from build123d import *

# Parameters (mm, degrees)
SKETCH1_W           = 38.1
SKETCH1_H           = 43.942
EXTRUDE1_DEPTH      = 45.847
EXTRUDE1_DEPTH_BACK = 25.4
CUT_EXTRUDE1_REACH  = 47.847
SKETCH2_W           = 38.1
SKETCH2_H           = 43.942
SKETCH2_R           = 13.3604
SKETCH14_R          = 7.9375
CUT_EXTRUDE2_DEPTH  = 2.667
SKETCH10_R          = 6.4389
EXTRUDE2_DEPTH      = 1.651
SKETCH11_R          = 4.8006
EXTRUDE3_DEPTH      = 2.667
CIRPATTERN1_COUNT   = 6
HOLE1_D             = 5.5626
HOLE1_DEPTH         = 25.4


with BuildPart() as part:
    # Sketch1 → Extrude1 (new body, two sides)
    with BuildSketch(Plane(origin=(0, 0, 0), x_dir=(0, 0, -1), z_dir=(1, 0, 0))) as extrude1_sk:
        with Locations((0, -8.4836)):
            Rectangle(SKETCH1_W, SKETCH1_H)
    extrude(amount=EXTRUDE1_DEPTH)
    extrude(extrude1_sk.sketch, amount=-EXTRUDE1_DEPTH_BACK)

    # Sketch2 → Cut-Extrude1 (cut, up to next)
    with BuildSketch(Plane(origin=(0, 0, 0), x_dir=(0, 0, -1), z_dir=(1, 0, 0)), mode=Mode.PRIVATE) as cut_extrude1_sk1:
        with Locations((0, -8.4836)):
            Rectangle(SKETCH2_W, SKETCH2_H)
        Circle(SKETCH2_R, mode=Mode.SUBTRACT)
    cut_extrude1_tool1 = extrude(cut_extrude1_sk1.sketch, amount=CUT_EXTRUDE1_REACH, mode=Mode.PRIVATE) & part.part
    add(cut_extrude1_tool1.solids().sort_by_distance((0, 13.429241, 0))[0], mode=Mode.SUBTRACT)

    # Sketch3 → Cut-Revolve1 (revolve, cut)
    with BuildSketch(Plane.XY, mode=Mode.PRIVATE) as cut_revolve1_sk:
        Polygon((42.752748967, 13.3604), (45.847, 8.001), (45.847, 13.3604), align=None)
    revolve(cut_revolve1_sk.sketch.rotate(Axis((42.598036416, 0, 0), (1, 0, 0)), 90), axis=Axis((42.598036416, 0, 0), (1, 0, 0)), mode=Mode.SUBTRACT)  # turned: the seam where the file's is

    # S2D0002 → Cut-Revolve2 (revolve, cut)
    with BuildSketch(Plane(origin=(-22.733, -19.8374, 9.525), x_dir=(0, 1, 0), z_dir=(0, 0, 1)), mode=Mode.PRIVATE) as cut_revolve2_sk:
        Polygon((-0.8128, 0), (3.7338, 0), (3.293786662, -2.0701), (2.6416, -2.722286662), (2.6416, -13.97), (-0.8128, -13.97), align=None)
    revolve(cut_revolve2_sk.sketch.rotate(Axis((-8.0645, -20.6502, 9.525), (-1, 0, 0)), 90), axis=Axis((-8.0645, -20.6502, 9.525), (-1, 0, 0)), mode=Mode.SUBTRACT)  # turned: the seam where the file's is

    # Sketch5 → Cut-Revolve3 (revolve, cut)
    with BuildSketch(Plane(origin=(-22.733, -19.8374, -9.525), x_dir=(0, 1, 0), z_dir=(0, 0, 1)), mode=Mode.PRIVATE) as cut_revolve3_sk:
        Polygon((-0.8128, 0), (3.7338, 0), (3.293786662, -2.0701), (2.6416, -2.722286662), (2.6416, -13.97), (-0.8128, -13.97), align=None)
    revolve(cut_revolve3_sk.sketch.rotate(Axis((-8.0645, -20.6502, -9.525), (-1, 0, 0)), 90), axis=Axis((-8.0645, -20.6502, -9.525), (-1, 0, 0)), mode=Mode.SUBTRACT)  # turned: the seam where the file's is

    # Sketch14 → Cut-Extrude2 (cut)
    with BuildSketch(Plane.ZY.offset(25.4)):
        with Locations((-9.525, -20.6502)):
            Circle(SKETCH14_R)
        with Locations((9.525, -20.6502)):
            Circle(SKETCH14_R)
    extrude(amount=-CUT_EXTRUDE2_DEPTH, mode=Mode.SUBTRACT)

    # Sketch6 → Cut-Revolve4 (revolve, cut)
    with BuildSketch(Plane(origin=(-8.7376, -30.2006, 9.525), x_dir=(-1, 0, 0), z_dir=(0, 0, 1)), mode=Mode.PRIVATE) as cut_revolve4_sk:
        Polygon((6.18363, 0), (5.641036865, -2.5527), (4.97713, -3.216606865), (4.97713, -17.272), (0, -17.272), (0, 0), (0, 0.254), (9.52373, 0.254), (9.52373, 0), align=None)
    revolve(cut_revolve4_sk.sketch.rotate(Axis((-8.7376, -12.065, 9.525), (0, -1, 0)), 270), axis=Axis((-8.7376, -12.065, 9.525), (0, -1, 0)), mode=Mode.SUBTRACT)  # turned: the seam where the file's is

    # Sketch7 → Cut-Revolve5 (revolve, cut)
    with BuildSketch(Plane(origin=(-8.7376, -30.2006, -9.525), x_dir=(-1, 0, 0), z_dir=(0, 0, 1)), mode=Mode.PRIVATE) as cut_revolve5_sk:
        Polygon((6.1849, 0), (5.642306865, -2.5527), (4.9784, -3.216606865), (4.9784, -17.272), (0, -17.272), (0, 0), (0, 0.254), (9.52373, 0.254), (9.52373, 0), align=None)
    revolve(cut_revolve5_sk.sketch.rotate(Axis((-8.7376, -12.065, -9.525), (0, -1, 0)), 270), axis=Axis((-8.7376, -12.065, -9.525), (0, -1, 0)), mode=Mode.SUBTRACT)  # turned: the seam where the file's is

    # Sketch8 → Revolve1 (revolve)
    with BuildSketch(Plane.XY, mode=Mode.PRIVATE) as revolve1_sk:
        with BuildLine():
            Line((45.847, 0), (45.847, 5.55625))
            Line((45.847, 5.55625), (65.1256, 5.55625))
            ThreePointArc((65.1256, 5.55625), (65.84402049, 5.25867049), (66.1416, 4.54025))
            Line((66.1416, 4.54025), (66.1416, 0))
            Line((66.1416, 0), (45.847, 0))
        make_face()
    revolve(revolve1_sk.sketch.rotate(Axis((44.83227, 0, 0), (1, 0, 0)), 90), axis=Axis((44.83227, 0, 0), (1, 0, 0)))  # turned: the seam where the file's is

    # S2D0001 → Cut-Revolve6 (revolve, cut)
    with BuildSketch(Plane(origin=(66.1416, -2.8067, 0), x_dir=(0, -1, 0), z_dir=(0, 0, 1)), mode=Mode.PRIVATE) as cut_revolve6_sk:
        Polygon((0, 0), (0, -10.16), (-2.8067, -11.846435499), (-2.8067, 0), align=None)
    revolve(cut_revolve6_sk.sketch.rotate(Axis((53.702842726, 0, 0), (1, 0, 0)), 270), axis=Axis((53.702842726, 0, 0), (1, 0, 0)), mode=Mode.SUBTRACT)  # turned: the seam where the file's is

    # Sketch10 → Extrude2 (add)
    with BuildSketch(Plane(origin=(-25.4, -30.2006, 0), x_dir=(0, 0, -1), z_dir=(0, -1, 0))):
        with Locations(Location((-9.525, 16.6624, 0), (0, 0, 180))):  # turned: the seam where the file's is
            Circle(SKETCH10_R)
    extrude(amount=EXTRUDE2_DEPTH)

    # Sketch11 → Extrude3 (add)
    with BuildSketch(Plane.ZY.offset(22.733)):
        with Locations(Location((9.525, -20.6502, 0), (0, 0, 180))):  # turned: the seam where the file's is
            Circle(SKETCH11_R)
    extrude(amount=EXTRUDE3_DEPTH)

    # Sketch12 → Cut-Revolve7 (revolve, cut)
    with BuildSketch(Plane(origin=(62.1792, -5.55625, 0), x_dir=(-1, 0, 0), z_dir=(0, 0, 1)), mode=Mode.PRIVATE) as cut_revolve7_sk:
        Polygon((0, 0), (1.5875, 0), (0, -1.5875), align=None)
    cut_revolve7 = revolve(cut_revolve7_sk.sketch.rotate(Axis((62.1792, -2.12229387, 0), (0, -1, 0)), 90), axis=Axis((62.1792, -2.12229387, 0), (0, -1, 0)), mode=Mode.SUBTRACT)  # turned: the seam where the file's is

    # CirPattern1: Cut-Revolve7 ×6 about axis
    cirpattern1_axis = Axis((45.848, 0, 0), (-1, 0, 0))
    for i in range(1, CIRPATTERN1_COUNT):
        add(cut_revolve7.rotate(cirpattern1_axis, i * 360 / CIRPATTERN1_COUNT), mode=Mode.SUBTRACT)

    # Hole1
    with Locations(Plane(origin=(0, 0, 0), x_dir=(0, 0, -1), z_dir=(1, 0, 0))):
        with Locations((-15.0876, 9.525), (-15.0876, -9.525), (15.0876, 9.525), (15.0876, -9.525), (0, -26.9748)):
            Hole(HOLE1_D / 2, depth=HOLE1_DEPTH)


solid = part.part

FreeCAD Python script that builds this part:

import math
import FreeCAD as App
import Part
import Sketcher
Q = App.Units.Quantity

doc = App.newDocument("Part")
body = doc.addObject("PartDesign::Body", "Body")

sketch1 = body.newObject("Sketcher::SketchObject", "Sketch")
sketch1.AttachmentSupport = (doc.getObject("YZ_Plane"), [""])
sketch1.MapMode = "FlatFace"
sketch1.addGeometry([
    Part.LineSegment(App.Vector(13, 19, 0), App.Vector(-30, 19, 0)),
    Part.LineSegment(App.Vector(-30, 19, 0), App.Vector(-30, -19, 0)),
    Part.LineSegment(App.Vector(-30, -19, 0), App.Vector(13, -19, 0)),
    Part.LineSegment(App.Vector(13, -19, 0), App.Vector(13, 19, 0)),
], False)
sketch1.addConstraint([
    Sketcher.Constraint("Coincident", 0, 2, 1, 1),
    Sketcher.Constraint("Coincident", 1, 2, 2, 1),
    Sketcher.Constraint("Coincident", 2, 2, 3, 1),
    Sketcher.Constraint("Coincident", 3, 2, 0, 1),
    Sketcher.Constraint("Horizontal", 0),
    Sketcher.Constraint("Vertical", 1),
    Sketcher.Constraint("Horizontal", 2),
    Sketcher.Constraint("Vertical", 3),
    Sketcher.Constraint("DistanceY", 1, 2, 1, 1, Q("1.5 in")),
    Sketcher.Constraint("DistanceX", 0, 2, 0, 1, Q("1.73 in")),
    Sketcher.Constraint("DistanceY", -1, 1, 0, 2, Q("0.75 in")),
    Sketcher.Constraint("DistanceX", 0, 2, -1, 1, Q("1.199 in")),
])
pad1 = body.newObject("PartDesign::Pad", "Pad")
pad1.Profile = sketch1
pad1.Type = "TwoLengths"
pad1.Length = Q("1.805 in")
pad1.Length2 = Q("1 in")

sketch2 = body.newObject("Sketcher::SketchObject", "Sketch001")
sketch2.AttachmentSupport = (doc.getObject("YZ_Plane"), [""])
sketch2.MapMode = "FlatFace"
sketch2.addGeometry([
    Part.LineSegment(App.Vector(13, 19, 0), App.Vector(-30, 19, 0)),
    Part.LineSegment(App.Vector(-30, 19, 0), App.Vector(-30, -19, 0)),
    Part.LineSegment(App.Vector(-30, -19, 0), App.Vector(13, -19, 0)),
    Part.LineSegment(App.Vector(13, -19, 0), App.Vector(13, 19, 0)),
    Part.Circle(App.Vector(0, 0, 0), App.Vector(0, 0, 1), 13),
], False)
sketch2.addConstraint([
    Sketcher.Constraint("Coincident", 0, 2, 1, 1),
    Sketcher.Constraint("Coincident", 1, 2, 2, 1),
    Sketcher.Constraint("Coincident", 2, 2, 3, 1),
    Sketcher.Constraint("Coincident", 3, 2, 0, 1),
    Sketcher.Constraint("Horizontal", 0),
    Sketcher.Constraint("Vertical", 1),
    Sketcher.Constraint("Horizontal", 2),
    Sketcher.Constraint("Vertical", 3),
    Sketcher.Constraint("Coincident", 4, 3, -1, 1),
    Sketcher.Constraint("Diameter", 4, Q("1.052 in")),
    Sketcher.Constraint("DistanceY", 1, 2, 1, 1, Q("1.5 in")),
    Sketcher.Constraint("DistanceX", 0, 2, 0, 1, Q("1.73 in")),
    Sketcher.Constraint("DistanceY", -1, 1, 0, 2, Q("0.75 in")),
    Sketcher.Constraint("DistanceX", 0, 2, -1, 1, Q("1.199 in")),
])
pocket1 = body.newObject("PartDesign::Pocket", "Pocket")
pocket1.Profile = sketch2
pocket1.Type = "UpToFirst"
pocket1.Reversed = True

sketch3 = body.newObject("Sketcher::SketchObject", "Sketch002")
sketch3.AttachmentSupport = (doc.getObject("XY_Plane"), [""])
sketch3.MapMode = "FlatFace"
sketch3.addGeometry([
    Part.LineSegment(App.Vector(42.8, 13.4, 0), App.Vector(45.8, 8, 0)),
    Part.LineSegment(App.Vector(45.8, 8, 0), App.Vector(45.8, 13.4, 0)),
    Part.LineSegment(App.Vector(45.8, 13.4, 0), App.Vector(42.8, 13.4, 0)),
], False)
sketch3.addConstraint([
    Sketcher.Constraint("Coincident", 0, 2, 1, 1),
    Sketcher.Constraint("Coincident", 1, 2, 2, 1),
    Sketcher.Constraint("Coincident", 2, 2, 0, 1),
    Sketcher.Constraint("Vertical", 1),
    Sketcher.Constraint("Horizontal", 2),
    Sketcher.Constraint("Angle", 0, Q("-60 deg")),
    Sketcher.Constraint("DistanceY", 1, 1, 1, 2, Q("0.211 in")),
    Sketcher.Constraint("DistanceX", -1, 1, 0, 2, Q("1.805 in")),
    Sketcher.Constraint("DistanceY", -1, 1, 0, 2, Q("0.315 in")),
])
groove = body.newObject("PartDesign::Groove", "Groove")
groove.Profile = sketch3
groove.ReferenceAxis = (sketch3, ["H_Axis"])
groove.Angle = 360

sketch4 = body.newObject("Sketcher::SketchObject", "Sketch003")
sketch4.AttachmentSupport = (doc.getObject("XY_Plane"), [""])
sketch4.MapMode = "FlatFace"
sketch4.AttachmentOffset = App.Placement(App.Vector(0, 0, 0.375 * 25.4), App.Rotation())
sketch4.addGeometry([
    Part.LineSegment(App.Vector(-22.7, -16.1, 0), App.Vector(-22.7, -20.7, 0)),
    Part.LineSegment(App.Vector(-22.7, -20.7, 0), App.Vector(-8.8, -20.7, 0)),
    Part.LineSegment(App.Vector(-8.8, -20.7, 0), App.Vector(-8.8, -17.2, 0)),
    Part.LineSegment(App.Vector(-8.8, -17.2, 0), App.Vector(-20, -17.2, 0)),
    Part.LineSegment(App.Vector(-20, -17.2, 0), App.Vector(-20.7, -16.5, 0)),
    Part.LineSegment(App.Vector(-20.7, -16.5, 0), App.Vector(-22.7, -16.1, 0)),
], False)
sketch4.addGeometry(Part.LineSegment(App.Vector(-8.8, -20.7, 0), App.Vector(-22.7, -20.7, 0)), True)
sketch4.addConstraint([
    Sketcher.Constraint("Coincident", 0, 2, 1, 1),
    Sketcher.Constraint("Coincident", 1, 2, 2, 1),
    Sketcher.Constraint("Coincident", 2, 2, 3, 1),
    Sketcher.Constraint("Coincident", 3, 2, 4, 1),
    Sketcher.Constraint("Coincident", 4, 2, 5, 1),
    Sketcher.Constraint("Coincident", 5, 2, 0, 1),
    Sketcher.Constraint("Vertical", 0),
    Sketcher.Constraint("Horizontal", 1),
    Sketcher.Constraint("Vertical", 2),
    Sketcher.Constraint("Horizontal", 3),
    Sketcher.Constraint("Horizontal", 6),
    Sketcher.Constraint("Coincident", 6, 1, 1, 2),
    Sketcher.Constraint("Vertical", 5, 2, 6, 2),
    Sketcher.Constraint("Angle", 4, Q("135 deg")),
    Sketcher.Constraint("Angle", 5, Q("168 deg")),
    Sketcher.Constraint("DistanceX", 1, 1, 1, 2, Q("0.55 in")),
    Sketcher.Constraint("DistanceY", 0, 2, 0, 1, Q("0.179 in")),
    Sketcher.Constraint("DistanceY", 2, 1, 2, 2, Q("0.136 in")),
    Sketcher.Constraint("DistanceX", 0, 2, -1, 1, Q("0.895 in")),
    Sketcher.Constraint("DistanceY", 0, 2, -1, 1, Q("0.813 in")),
    Sketcher.Constraint("DistanceX", 4, 2, -1, 1, Q("0.8135 in")),
])
groove2 = body.newObject("PartDesign::Groove", "Groove001")
groove2.Profile = sketch4
groove2.ReferenceAxis = (sketch4, ["Axis0"])
groove2.Angle = 360

sketch5 = body.newObject("Sketcher::SketchObject", "Sketch004")
sketch5.AttachmentSupport = (doc.getObject("XY_Plane"), [""])
sketch5.MapMode = "FlatFace"
sketch5.AttachmentOffset = App.Placement(App.Vector(0, 0, -0.375 * 25.4), App.Rotation())
sketch5.addGeometry([
    Part.LineSegment(App.Vector(-22.7, -16.1, 0), App.Vector(-22.7, -20.7, 0)),
    Part.LineSegment(App.Vector(-22.7, -20.7, 0), App.Vector(-8.8, -20.7, 0)),
    Part.LineSegment(App.Vector(-8.8, -20.7, 0), App.Vector(-8.8, -17.2, 0)),
    Part.LineSegment(App.Vector(-8.8, -17.2, 0), App.Vector(-20, -17.2, 0)),
    Part.LineSegment(App.Vector(-20, -17.2, 0), App.Vector(-20.7, -16.5, 0)),
    Part.LineSegment(App.Vector(-20.7, -16.5, 0), App.Vector(-22.7, -16.1, 0)),
], False)
sketch5.addGeometry(Part.LineSegment(App.Vector(-8.8, -20.7, 0), App.Vector(-22.7, -20.7, 0)), True)
sketch5.addConstraint([
    Sketcher.Constraint("Coincident", 0, 2, 1, 1),
    Sketcher.Constraint("Coincident", 1, 2, 2, 1),
    Sketcher.Constraint("Coincident", 2, 2, 3, 1),
    Sketcher.Constraint("Coincident", 3, 2, 4, 1),
    Sketcher.Constraint("Coincident", 4, 2, 5, 1),
    Sketcher.Constraint("Coincident", 5, 2, 0, 1),
    Sketcher.Constraint("Vertical", 0),
    Sketcher.Constraint("Horizontal", 1),
    Sketcher.Constraint("Vertical", 2),
    Sketcher.Constraint("Horizontal", 3),
    Sketcher.Constraint("Horizontal", 6),
    Sketcher.Constraint("Coincident", 6, 1, 1, 2),
    Sketcher.Constraint("Vertical", 5, 2, 6, 2),
    Sketcher.Constraint("Angle", 4, Q("135 deg")),
    Sketcher.Constraint("Angle", 5, Q("168 deg")),
    Sketcher.Constraint("DistanceX", 1, 1, 1, 2, Q("0.55 in")),
    Sketcher.Constraint("DistanceY", 0, 2, 0, 1, Q("0.179 in")),
    Sketcher.Constraint("DistanceY", 2, 1, 2, 2, Q("0.136 in")),
    Sketcher.Constraint("DistanceX", 0, 2, -1, 1, Q("0.895 in")),
    Sketcher.Constraint("DistanceY", 0, 2, -1, 1, Q("0.813 in")),
    Sketcher.Constraint("DistanceX", 4, 2, -1, 1, Q("0.8135 in")),
])
groove3 = body.newObject("PartDesign::Groove", "Groove002")
groove3.Profile = sketch5
groove3.ReferenceAxis = (sketch5, ["Axis0"])
groove3.Angle = 360

sketch6 = body.newObject("Sketcher::SketchObject", "Sketch005")
sketch6.AttachmentSupport = (doc.getObject("YZ_Plane"), [""])
sketch6.MapMode = "FlatFace"
sketch6.AttachmentOffset = App.Placement(App.Vector(0, 0, -1 * 25.4), App.Rotation())
sketch6.addGeometry([
    Part.Circle(App.Vector(-21, -10, 0), App.Vector(0, 0, 1), 8),
    Part.Circle(App.Vector(-21, 10, 0), App.Vector(0, 0, 1), 8),
], False)
sketch6.addConstraint([
    Sketcher.Constraint("Equal", 0, 1),
    Sketcher.Constraint("Symmetric", 0, 3, 1, 3, -1),
    Sketcher.Constraint("Diameter", 0, Q("0.625 in")),
    Sketcher.Constraint("DistanceY", 0, 3, 1, 3, Q("0.75 in")),
    Sketcher.Constraint("DistanceX", 0, 3, -1, 1, Q("0.813 in")),
])
pocket2 = body.newObject("PartDesign::Pocket", "Pocket001")
pocket2.Profile = sketch6
pocket2.Length = Q("0.105 in")
pocket2.Reversed = True

sketch7 = body.newObject("Sketcher::SketchObject", "Sketch006")
sketch7.AttachmentSupport = (doc.getObject("XY_Plane"), [""])
sketch7.MapMode = "FlatFace"
sketch7.AttachmentOffset = App.Placement(App.Vector(0, 0, 0.375 * 25.4), App.Rotation())
sketch7.addGeometry([
    Part.LineSegment(App.Vector(-14.38, -27.65, 0), App.Vector(-14.92, -30.2, 0)),
    Part.LineSegment(App.Vector(-14.92, -30.2, 0), App.Vector(-18.26, -30.2, 0)),
    Part.LineSegment(App.Vector(-18.26, -30.2, 0), App.Vector(-18.26, -30.45, 0)),
    Part.LineSegment(App.Vector(-18.26, -30.45, 0), App.Vector(-8.74, -30.45, 0)),
    Part.LineSegment(App.Vector(-8.74, -30.45, 0), App.Vector(-8.74, -12.93, 0)),
    Part.LineSegment(App.Vector(-8.74, -12.93, 0), App.Vector(-13.71, -12.93, 0)),
    Part.LineSegment(App.Vector(-13.71, -12.93, 0), App.Vector(-13.71, -26.98, 0)),
    Part.LineSegment(App.Vector(-13.71, -26.98, 0), App.Vector(-14.38, -27.65, 0)),
], False)
sketch7.addGeometry(Part.LineSegment(App.Vector(-8.74, -12.93, 0), App.Vector(-8.74, -30.45, 0)), True)
sketch7.addConstraint([
    Sketcher.Constraint("Coincident", 0, 2, 1, 1),
    Sketcher.Constraint("Coincident", 1, 2, 2, 1),
    Sketcher.Constraint("Coincident", 2, 2, 3, 1),
    Sketcher.Constraint("Coincident", 3, 2, 4, 1),
    Sketcher.Constraint("Coincident", 4, 2, 5, 1),
    Sketcher.Constraint("Coincident", 5, 2, 6, 1),
    Sketcher.Constraint("Coincident", 6, 2, 7, 1),
    Sketcher.Constraint("Coincident", 7, 2, 0, 1),
    Sketcher.Constraint("Horizontal", 1),
    Sketcher.Constraint("Vertical", 2),
    Sketcher.Constraint("Horizontal", 3),
    Sketcher.Constraint("Vertical", 4),
    Sketcher.Constraint("Horizontal", 5),
    Sketcher.Constraint("Vertical", 6),
    Sketcher.Constraint("Vertical", 8),
    Sketcher.Constraint("Coincident", 8, 1, 4, 2),
    Sketcher.Constraint("Horizontal", 2, 2, 8, 2),
    Sketcher.Constraint("Angle", 0, Q("-102 deg")),
    Sketcher.Constraint("Angle", 7, Q("-135 deg")),
    Sketcher.Constraint("DistanceY", 2, 2, 2, 1, Q("0.01 in")),
    Sketcher.Constraint("DistanceY", 4, 1, 4, 2, Q("0.69 in")),
    Sketcher.Constraint("DistanceX", 1, 2, 1, 1, Q("0.1315 in")),
    Sketcher.Constraint("DistanceY", 0, 2, -1, 1, Q("1.189 in")),
    Sketcher.Constraint("DistanceX", 3, 2, -1, 1, Q("0.344 in")),
    Sketcher.Constraint("DistanceX", 1, 2, 5, 2, Q("0.179 in")),
    Sketcher.Constraint("DistanceY", 7, 2, -1, 1, Q("1.0885 in")),
    Sketcher.Constraint("DistanceX", 3, 1, 3, 2, Q("9.52373 mm")),
])
groove4 = body.newObject("PartDesign::Groove", "Groove003")
groove4.Profile = sketch7
groove4.ReferenceAxis = (sketch7, ["Axis0"])
groove4.Angle = 360

sketch8 = body.newObject("Sketcher::SketchObject", "Sketch007")
sketch8.AttachmentSupport = (doc.getObject("XY_Plane"), [""])
sketch8.MapMode = "FlatFace"
sketch8.AttachmentOffset = App.Placement(App.Vector(0, 0, -0.375 * 25.4), App.Rotation())
sketch8.addGeometry([
    Part.LineSegment(App.Vector(-14.38, -27.65, 0), App.Vector(-14.92, -30.2, 0)),
    Part.LineSegment(App.Vector(-14.92, -30.2, 0), App.Vector(-18.26, -30.2, 0)),
    Part.LineSegment(App.Vector(-18.26, -30.2, 0), App.Vector(-18.26, -30.45, 0)),
    Part.LineSegment(App.Vector(-18.26, -30.45, 0), App.Vector(-8.74, -30.45, 0)),
    Part.LineSegment(App.Vector(-8.74, -30.45, 0), App.Vector(-8.74, -12.93, 0)),
    Part.LineSegment(App.Vector(-8.74, -12.93, 0), App.Vector(-13.72, -12.93, 0)),
    Part.LineSegment(App.Vector(-13.72, -12.93, 0), App.Vector(-13.72, -26.98, 0)),
    Part.LineSegment(App.Vector(-13.72, -26.98, 0), App.Vector(-14.38, -27.65, 0)),
], False)
sketch8.addGeometry(Part.LineSegment(App.Vector(-8.74, -12.93, 0), App.Vector(-8.74, -30.45, 0)), True)
sketch8.addConstraint([
    Sketcher.Constraint("Coincident", 0, 2, 1, 1),
    Sketcher.Constraint("Coincident", 1, 2, 2, 1),
    Sketcher.Constraint("Coincident", 2, 2, 3, 1),
    Sketcher.Constraint("Coincident", 3, 2, 4, 1),
    Sketcher.Constraint("Coincident", 4, 2, 5, 1),
    Sketcher.Constraint("Coincident", 5, 2, 6, 1),
    Sketcher.Constraint("Coincident", 6, 2, 7, 1),
    Sketcher.Constraint("Coincident", 7, 2, 0, 1),
    Sketcher.Constraint("Horizontal", 1),
    Sketcher.Constraint("Vertical", 2),
    Sketcher.Constraint("Horizontal", 3),
    Sketcher.Constraint("Vertical", 4),
    Sketcher.Constraint("Horizontal", 5),
    Sketcher.Constraint("Vertical", 6),
    Sketcher.Constraint("Vertical", 8),
    Sketcher.Constraint("Coincident", 8, 1, 4, 2),
    Sketcher.Constraint("Horizontal", 2, 2, 8, 2),
    Sketcher.Constraint("Angle", 0, Q("-102 deg")),
    Sketcher.Constraint("Angle", 7, Q("-135 deg")),
    Sketcher.Constraint("DistanceY", 2, 2, 2, 1, Q("0.01 in")),
    Sketcher.Constraint("DistanceY", 4, 1, 4, 2, Q("0.69 in")),
    Sketcher.Constraint("DistanceX", 5, 2, 5, 1, Q("0.196 in")),
    Sketcher.Constraint("DistanceX", 5, 2, -1, 1, Q("0.54 in")),
    Sketcher.Constraint("DistanceY", 0, 2, -1, 1, Q("1.189 in")),
    Sketcher.Constraint("DistanceX", 0, 2, -1, 1, Q("0.5875 in")),
    Sketcher.Constraint("DistanceY", 7, 2, -1, 1, Q("1.0885 in")),
    Sketcher.Constraint("DistanceX", 1, 2, 1, 1, Q("3.33883 mm")),
])
groove5 = body.newObject("PartDesign::Groove", "Groove004")
groove5.Profile = sketch8
groove5.ReferenceAxis = (sketch8, ["Axis0"])
groove5.Angle = 360

sketch9 = body.newObject("Sketcher::SketchObject", "Sketch008")
sketch9.AttachmentSupport = (doc.getObject("XY_Plane"), [""])
sketch9.MapMode = "FlatFace"
sketch9.addGeometry([
    Part.LineSegment(App.Vector(45.8, 5.6, 0), App.Vector(45.8, 0, 0)),
    Part.LineSegment(App.Vector(45.8, 0, 0), App.Vector(66.1, 0, 0)),
    Part.LineSegment(App.Vector(66.1, 0, 0), App.Vector(66.1, 4.5, 0)),
    Part.ArcOfCircle(Part.Circle(App.Vector(65.1, 4.5, 0), App.Vector(0, 0, 1), 1), math.radians(0), math.radians(90)),
    Part.LineSegment(App.Vector(65.1, 5.6, 0), App.Vector(45.8, 5.6, 0)),
], False)
sketch9.addConstraint([
    Sketcher.Constraint("Coincident", 0, 2, 1, 1),
    Sketcher.Constraint("Coincident", 1, 2, 2, 1),
    Sketcher.Constraint("Tangent", 2, 2, 3, 1),
    Sketcher.Constraint("Tangent", 3, 2, 4, 1),
    Sketcher.Constraint("Coincident", 4, 2, 0, 1),
    Sketcher.Constraint("Vertical", 0),
    Sketcher.Constraint("Horizontal", 1),
    Sketcher.Constraint("Vertical", 2),
    Sketcher.Constraint("Horizontal", 4),
    Sketcher.Constraint("PointOnObject", 0, 2, -1),
    Sketcher.Constraint("Radius", 3, Q("0.04 in")),
    Sketcher.Constraint("DistanceX", 1, 1, 1, 2, Q("0.799 in")),
    Sketcher.Constraint("DistanceY", 0, 2, 0, 1, Q("0.21875 in")),
    Sketcher.Constraint("DistanceX", -1, 1, 3, 3, Q("2.564 in")),
])
revolution = body.newObject("PartDesign::Revolution", "Revolution")
revolution.Profile = sketch9
revolution.ReferenceAxis = (sketch9, ["H_Axis"])
revolution.Angle = 360

sketch10 = body.newObject("Sketcher::SketchObject", "Sketch009")
sketch10.AttachmentSupport = (doc.getObject("XY_Plane"), [""])
sketch10.MapMode = "FlatFace"
sketch10.addGeometry([
    Part.LineSegment(App.Vector(56, -2.8, 0), App.Vector(66.1, -2.8, 0)),
    Part.LineSegment(App.Vector(66.1, -2.8, 0), App.Vector(66.1, 0, 0)),
    Part.LineSegment(App.Vector(66.1, 0, 0), App.Vector(54.3, 0, 0)),
    Part.LineSegment(App.Vector(54.3, 0, 0), App.Vector(56, -2.8, 0)),
], False)
sketch10.addConstraint([
    Sketcher.Constraint("Coincident", 0, 2, 1, 1),
    Sketcher.Constraint("Coincident", 1, 2, 2, 1),
    Sketcher.Constraint("Coincident", 2, 2, 3, 1),
    Sketcher.Constraint("Coincident", 3, 2, 0, 1),
    Sketcher.Constraint("Horizontal", 0),
    Sketcher.Constraint("Vertical", 1),
    Sketcher.Constraint("Horizontal", 2),
    Sketcher.Constraint("PointOnObject", 1, 2, -1),
    Sketcher.Constraint("DistanceX", 0, 1, 0, 2, Q("0.4 in")),
    Sketcher.Constraint("Angle", 3, Q("-59 deg")),
    Sketcher.Constraint("DistanceY", 1, 1, 1, 2, Q("0.1105 in")),
    Sketcher.Constraint("DistanceX", -1, 1, 0, 2, Q("2.604 in")),
])
groove6 = body.newObject("PartDesign::Groove", "Groove005")
groove6.Profile = sketch10
groove6.ReferenceAxis = (sketch10, ["H_Axis"])
groove6.Angle = 360

sketch11 = body.newObject("Sketcher::SketchObject", "Sketch010")
sketch11.AttachmentSupport = (doc.getObject("XZ_Plane"), [""])
sketch11.MapMode = "FlatFace"
sketch11.AttachmentOffset = App.Placement(App.Vector(0, 0, 1.189 * 25.4), App.Rotation())
sketch11.addGeometry(Part.Circle(App.Vector(-9, 10, 0), App.Vector(0, 0, 1), 6), False)
sketch11.addConstraint([
    Sketcher.Constraint("Diameter", 0, Q("0.507 in")),
    Sketcher.Constraint("DistanceX", 0, 3, -1, 1, Q("0.344 in")),
    Sketcher.Constraint("DistanceY", -1, 1, 0, 3, Q("0.375 in")),
])
pad2 = body.newObject("PartDesign::Pad", "Pad001")
pad2.Profile = sketch11
pad2.Length = Q("0.065 in")

sketch12 = body.newObject("Sketcher::SketchObject", "Sketch011")
sketch12.AttachmentSupport = (doc.getObject("YZ_Plane"), [""])
sketch12.MapMode = "FlatFace"
sketch12.AttachmentOffset = App.Placement(App.Vector(0, 0, -0.895 * 25.4), App.Rotation())
sketch12.addGeometry(Part.Circle(App.Vector(-20.7, 9.5, 0), App.Vector(0, 0, 1), 4.8), False)
sketch12.addConstraint([
    Sketcher.Constraint("Diameter", 0, Q("0.378 in")),
    Sketcher.Constraint("DistanceX", 0, 3, -1, 1, Q("0.813 in")),
    Sketcher.Constraint("DistanceY", -1, 1, 0, 3, Q("0.375 in")),
])
pad3 = body.newObject("PartDesign::Pad", "Pad002")
pad3.Profile = sketch12
pad3.Length = Q("0.105 in")
pad3.Reversed = True

sketch13 = body.newObject("Sketcher::SketchObject", "Sketch012")
sketch13.AttachmentSupport = (doc.getObject("XY_Plane"), [""])
sketch13.MapMode = "FlatFace"
sketch13.addGeometry([
    Part.LineSegment(App.Vector(60.6, -5.6, 0), App.Vector(62.2, -5.6, 0)),
    Part.LineSegment(App.Vector(62.2, -5.6, 0), App.Vector(62.2, -4, 0)),
    Part.LineSegment(App.Vector(62.2, -4, 0), App.Vector(60.6, -5.6, 0)),
], False)
sketch13.addGeometry(Part.LineSegment(App.Vector(62.2, -4, 0), App.Vector(62.2, -5.6, 0)), True)
sketch13.addConstraint([
    Sketcher.Constraint("Coincident", 0, 2, 1, 1),
    Sketcher.Constraint("Coincident", 1, 2, 2, 1),
    Sketcher.Constraint("Coincident", 2, 2, 0, 1),
    Sketcher.Constraint("Horizontal", 0),
    Sketcher.Constraint("Vertical", 1),
    Sketcher.Constraint("Vertical", 3),
    Sketcher.Constraint("Coincident", 3, 1, 1, 2),
    Sketcher.Constraint("Horizontal", 2, 2, 3, 2),
    Sketcher.Constraint("Equal", 0, 1),
    Sketcher.Constraint("DistanceX", 0, 1, 0, 2, Q("0.0625 in")),
    Sketcher.Constraint("DistanceX", -1, 1, 0, 2, Q("2.448 in")),
    Sketcher.Constraint("DistanceY", 0, 2, -1, 1, Q("0.21875 in")),
])
groove7 = body.newObject("PartDesign::Groove", "Groove006")
groove7.Profile = sketch13
groove7.ReferenceAxis = (sketch13, ["Axis0"])
groove7.Angle = 360
doc.recompute()

polarpattern = body.newObject("PartDesign::PolarPattern", "PolarPattern")
polarpattern.Originals = [groove7]
polarpattern.Axis = (doc.getObject("X_Axis"), [""])
polarpattern.Angle = 360
polarpattern.Occurrences = 6
body.Tip = polarpattern

sketch14 = body.newObject("Sketcher::SketchObject", "Sketch013")
sketch14.AttachmentSupport = (doc.getObject("YZ_Plane"), [""])
sketch14.MapMode = "FlatFace"
sketch14.addGeometry([
    Part.Circle(App.Vector(9.5, 15.1, 0), App.Vector(0, 0, 1), 2.8),
    Part.Circle(App.Vector(-9.5, 15.1, 0), App.Vector(0, 0, 1), 2.8),
    Part.Circle(App.Vector(9.5, -15.1, 0), App.Vector(0, 0, 1), 2.8),
    Part.Circle(App.Vector(-9.5, -15.1, 0), App.Vector(0, 0, 1), 2.8),
    Part.Circle(App.Vector(-27, 0, 0), App.Vector(0, 0, 1), 2.8),
], False)
sketch14.addConstraint([
    Sketcher.Constraint("Equal", 0, 1),
    Sketcher.Constraint("Equal", 1, 2),
    Sketcher.Constraint("Equal", 2, 3),
    Sketcher.Constraint("Equal", 3, 4),
    Sketcher.Constraint("Symmetric", 1, 3, 2, 3, -1, 1),
    Sketcher.Constraint("Symmetric", 0, 3, 3, 3, -1, 1),
    Sketcher.Constraint("Symmetric", 0, 3, 1, 3, -2),
    Sketcher.Constraint("PointOnObject", 4, 3, -1),
    Sketcher.Constraint("Diameter", 0, Q("0.219 in")),
    Sketcher.Constraint("DistanceX", 1, 3, 0, 3, Q("0.75 in")),
    Sketcher.Constraint("DistanceY", -1, 1, 0, 3, Q("0.594 in")),
    Sketcher.Constraint("DistanceX", 4, 3, -1, 1, Q("1.062 in")),
])
doc.recompute()
hole = body.newObject("PartDesign::Hole", "Hole")
hole.Profile = sketch14
hole.ThreadType = "None"
hole.Diameter = Q("0.219 in")
hole.DepthType = "Dimension"
hole.Depth = Q("1 in")
hole.DrillPoint = "Flat"

doc.recompute()
